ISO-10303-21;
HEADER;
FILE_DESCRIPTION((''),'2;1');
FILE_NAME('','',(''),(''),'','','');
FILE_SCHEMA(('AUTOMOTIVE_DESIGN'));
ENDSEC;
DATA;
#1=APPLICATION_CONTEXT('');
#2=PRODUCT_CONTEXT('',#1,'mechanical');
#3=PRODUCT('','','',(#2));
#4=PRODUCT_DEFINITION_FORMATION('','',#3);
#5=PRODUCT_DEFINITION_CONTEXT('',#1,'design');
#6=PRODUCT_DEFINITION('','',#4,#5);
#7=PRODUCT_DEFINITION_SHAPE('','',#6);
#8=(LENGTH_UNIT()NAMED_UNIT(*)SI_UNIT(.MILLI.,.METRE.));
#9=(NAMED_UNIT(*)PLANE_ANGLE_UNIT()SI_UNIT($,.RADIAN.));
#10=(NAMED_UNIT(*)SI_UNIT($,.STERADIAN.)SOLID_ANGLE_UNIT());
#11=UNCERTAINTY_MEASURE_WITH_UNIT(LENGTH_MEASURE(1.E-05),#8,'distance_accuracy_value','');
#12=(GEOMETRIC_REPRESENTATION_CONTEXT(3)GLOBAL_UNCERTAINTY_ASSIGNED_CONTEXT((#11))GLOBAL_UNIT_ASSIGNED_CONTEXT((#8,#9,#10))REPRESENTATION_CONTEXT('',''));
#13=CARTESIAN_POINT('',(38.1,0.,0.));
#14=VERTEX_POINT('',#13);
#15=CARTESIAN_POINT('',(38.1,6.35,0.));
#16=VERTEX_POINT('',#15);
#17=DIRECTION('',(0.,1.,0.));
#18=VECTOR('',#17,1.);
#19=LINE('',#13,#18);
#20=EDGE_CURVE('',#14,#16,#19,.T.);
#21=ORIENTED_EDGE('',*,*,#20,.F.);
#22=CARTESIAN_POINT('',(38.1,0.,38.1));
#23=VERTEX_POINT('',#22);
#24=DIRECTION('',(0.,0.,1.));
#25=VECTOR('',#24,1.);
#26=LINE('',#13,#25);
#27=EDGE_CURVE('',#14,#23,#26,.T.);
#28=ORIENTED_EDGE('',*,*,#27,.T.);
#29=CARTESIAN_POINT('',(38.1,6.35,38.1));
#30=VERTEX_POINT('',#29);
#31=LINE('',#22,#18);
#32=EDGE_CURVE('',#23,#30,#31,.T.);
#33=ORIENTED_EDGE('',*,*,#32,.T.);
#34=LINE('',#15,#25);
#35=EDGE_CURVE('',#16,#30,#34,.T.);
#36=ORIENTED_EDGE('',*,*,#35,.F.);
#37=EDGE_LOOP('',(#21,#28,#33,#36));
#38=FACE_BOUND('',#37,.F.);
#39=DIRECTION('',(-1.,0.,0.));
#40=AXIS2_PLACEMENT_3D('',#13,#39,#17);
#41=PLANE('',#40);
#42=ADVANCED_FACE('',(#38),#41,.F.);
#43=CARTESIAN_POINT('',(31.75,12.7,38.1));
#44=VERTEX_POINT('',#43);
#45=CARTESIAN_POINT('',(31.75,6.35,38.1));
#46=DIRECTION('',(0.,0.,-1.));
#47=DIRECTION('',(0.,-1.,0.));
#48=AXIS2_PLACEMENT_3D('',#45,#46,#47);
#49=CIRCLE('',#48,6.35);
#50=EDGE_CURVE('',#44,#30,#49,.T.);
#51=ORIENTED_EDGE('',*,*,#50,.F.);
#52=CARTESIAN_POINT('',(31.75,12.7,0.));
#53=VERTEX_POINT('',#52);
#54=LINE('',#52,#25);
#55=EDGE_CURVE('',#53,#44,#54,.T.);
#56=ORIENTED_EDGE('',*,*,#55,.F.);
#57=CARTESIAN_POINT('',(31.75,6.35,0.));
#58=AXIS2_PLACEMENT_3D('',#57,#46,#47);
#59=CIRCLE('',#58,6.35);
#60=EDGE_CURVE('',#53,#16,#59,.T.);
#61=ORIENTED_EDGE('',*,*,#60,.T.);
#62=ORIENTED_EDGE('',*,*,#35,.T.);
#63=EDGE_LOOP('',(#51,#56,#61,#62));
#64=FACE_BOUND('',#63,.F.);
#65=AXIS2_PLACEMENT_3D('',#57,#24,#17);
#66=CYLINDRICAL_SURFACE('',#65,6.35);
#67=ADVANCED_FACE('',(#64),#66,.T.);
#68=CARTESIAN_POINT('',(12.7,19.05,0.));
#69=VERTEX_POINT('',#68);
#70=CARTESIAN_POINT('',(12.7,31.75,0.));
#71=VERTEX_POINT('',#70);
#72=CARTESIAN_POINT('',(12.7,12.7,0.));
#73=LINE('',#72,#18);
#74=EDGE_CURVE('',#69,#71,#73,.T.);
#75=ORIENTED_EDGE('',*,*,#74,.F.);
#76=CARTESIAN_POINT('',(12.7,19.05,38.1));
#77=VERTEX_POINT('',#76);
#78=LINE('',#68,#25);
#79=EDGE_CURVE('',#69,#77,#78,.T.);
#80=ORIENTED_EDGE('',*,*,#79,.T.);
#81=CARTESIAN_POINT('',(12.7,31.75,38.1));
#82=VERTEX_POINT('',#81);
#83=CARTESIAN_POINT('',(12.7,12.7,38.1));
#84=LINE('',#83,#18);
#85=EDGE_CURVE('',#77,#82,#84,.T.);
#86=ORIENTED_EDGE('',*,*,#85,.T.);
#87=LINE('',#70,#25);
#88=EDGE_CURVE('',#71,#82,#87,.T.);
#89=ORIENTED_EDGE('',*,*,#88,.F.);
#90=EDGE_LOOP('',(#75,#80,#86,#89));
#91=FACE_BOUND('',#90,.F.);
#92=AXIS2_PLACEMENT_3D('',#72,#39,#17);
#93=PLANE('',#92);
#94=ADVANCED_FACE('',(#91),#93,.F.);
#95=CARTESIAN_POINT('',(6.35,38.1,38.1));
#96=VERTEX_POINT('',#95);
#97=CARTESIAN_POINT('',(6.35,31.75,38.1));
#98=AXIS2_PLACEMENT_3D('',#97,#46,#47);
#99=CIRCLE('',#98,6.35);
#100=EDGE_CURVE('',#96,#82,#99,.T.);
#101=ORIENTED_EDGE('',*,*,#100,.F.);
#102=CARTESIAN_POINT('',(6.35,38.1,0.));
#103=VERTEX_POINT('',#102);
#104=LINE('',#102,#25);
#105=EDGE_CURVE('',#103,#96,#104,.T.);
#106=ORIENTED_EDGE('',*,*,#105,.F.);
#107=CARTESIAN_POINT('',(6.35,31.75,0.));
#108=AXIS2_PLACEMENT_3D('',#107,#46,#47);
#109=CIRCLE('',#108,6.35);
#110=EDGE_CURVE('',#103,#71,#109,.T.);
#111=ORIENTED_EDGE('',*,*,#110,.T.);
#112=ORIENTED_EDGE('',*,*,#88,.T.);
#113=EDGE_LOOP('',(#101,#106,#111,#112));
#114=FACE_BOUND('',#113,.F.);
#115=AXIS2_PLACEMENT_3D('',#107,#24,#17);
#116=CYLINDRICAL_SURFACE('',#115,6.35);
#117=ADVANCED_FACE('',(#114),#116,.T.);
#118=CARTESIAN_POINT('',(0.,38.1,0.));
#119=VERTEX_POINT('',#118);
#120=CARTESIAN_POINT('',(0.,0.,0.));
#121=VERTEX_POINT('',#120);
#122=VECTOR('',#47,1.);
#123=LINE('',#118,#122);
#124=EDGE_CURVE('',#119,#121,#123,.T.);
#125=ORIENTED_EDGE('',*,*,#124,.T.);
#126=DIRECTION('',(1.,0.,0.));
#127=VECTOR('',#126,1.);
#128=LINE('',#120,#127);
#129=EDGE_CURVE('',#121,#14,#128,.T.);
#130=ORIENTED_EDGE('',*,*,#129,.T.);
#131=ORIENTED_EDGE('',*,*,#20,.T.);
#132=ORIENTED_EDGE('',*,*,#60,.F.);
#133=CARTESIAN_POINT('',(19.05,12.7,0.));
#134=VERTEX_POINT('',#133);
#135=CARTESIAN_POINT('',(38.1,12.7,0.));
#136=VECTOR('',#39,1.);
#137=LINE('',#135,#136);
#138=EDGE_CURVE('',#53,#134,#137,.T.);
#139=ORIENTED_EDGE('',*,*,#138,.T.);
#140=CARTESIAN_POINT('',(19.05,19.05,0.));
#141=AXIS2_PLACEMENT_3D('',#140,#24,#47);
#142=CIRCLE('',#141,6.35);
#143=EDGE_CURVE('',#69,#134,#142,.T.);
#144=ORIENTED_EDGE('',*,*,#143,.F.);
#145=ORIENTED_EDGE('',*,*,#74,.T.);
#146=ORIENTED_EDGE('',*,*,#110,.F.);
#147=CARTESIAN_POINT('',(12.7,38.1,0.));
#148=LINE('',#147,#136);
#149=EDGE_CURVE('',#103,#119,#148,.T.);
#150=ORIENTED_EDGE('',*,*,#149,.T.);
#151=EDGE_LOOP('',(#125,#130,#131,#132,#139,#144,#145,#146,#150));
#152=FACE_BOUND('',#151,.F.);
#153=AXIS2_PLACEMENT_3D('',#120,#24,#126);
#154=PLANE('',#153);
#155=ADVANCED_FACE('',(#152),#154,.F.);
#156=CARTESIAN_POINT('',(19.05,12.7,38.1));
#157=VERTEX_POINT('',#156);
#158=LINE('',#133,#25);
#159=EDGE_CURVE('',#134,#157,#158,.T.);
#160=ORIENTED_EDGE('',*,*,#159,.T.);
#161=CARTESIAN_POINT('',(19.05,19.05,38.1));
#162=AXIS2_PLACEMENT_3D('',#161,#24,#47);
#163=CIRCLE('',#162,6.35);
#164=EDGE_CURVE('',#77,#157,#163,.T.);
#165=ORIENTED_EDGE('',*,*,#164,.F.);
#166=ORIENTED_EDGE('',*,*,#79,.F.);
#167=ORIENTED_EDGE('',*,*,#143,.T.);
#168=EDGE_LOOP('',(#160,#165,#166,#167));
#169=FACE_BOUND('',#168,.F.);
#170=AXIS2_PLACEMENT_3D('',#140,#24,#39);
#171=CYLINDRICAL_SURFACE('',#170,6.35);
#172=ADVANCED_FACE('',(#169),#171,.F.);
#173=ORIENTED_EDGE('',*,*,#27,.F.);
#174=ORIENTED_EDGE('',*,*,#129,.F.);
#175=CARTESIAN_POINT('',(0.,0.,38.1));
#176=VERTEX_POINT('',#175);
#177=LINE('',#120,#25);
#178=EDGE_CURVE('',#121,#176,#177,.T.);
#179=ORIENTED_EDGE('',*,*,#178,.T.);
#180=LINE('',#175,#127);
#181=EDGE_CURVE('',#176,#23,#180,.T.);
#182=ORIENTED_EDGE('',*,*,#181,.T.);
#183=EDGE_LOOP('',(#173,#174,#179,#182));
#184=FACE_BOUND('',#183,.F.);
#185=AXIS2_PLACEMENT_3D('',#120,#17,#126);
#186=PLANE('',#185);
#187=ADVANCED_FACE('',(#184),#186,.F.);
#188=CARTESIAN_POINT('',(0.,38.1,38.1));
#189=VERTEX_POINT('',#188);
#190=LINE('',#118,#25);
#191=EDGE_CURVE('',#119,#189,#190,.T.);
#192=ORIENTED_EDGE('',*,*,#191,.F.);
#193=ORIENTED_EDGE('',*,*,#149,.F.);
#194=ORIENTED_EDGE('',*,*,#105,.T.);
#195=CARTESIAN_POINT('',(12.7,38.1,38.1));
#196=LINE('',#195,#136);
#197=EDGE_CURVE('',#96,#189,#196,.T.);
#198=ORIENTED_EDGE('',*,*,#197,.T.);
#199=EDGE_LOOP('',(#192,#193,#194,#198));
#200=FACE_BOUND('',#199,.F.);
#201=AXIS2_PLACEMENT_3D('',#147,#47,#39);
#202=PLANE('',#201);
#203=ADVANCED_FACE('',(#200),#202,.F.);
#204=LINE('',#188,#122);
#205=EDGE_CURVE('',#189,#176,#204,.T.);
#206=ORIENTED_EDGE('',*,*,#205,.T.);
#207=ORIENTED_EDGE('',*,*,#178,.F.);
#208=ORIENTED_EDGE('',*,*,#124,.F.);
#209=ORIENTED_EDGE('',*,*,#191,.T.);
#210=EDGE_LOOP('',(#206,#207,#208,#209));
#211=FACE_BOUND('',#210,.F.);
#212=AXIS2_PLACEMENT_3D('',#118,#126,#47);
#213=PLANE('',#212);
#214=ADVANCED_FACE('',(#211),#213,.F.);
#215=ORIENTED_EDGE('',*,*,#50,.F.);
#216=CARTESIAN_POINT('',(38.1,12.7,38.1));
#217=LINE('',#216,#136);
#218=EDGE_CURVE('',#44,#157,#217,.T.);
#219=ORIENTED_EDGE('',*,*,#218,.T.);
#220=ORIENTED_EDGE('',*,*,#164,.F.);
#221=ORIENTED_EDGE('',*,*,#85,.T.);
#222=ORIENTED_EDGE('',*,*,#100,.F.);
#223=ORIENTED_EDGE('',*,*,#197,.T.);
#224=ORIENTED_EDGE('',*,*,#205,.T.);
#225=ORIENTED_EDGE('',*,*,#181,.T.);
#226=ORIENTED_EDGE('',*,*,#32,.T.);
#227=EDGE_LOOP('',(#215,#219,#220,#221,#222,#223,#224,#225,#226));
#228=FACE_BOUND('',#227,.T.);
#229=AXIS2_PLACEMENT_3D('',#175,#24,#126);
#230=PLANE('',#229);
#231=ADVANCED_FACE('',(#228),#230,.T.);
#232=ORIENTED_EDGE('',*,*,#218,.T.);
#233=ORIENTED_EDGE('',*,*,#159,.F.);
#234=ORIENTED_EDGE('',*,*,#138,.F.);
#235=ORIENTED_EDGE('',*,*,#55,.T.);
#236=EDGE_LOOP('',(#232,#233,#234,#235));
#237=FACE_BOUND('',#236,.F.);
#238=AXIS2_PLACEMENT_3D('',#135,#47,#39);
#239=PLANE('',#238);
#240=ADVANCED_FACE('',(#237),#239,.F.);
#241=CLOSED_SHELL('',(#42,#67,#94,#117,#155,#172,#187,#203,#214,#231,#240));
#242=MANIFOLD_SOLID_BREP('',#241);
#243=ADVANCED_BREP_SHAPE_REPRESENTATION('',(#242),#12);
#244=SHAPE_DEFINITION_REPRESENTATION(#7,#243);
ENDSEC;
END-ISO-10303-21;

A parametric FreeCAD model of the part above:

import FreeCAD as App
import Part
import Sketcher
Q = App.Units.Quantity


def edges_at(feature, points):
    """Names of the edges that pass closest to the given points."""
    edges = feature.Shape.Edges
    near = lambda p: min(range(len(edges)), key=lambda i: edges[i].distToShape(Part.Vertex(*p))[0])
    return sorted({f"Edge{near(p) + 1}" for p in points})


def add_polygon(sketch, points):
    """Adds a closed chain of lines whose ends are joined by coincident constraints."""
    first, n = sketch.GeometryCount, len(points)
    for a, b in zip(points, points[1:] + points[:1]):
        sketch.addGeometry(Part.LineSegment(App.Vector(*a, 0), App.Vector(*b, 0)), False)
    for i in range(n):
        sketch.addConstraint(Sketcher.Constraint("Coincident", first + i, 2, first + (i + 1) % n, 1))

doc = App.newDocument("Part")
body = doc.addObject("PartDesign::Body", "Body")

# Sketch on XY plane
sketch1 = body.newObject("Sketcher::SketchObject", "Sketch")
sketch1.AttachmentSupport = (doc.getObject("XY_Plane"), [""])
sketch1.MapMode = "FlatFace"
add_polygon(sketch1, [(0, 38), (0, 0), (38, 0), (38, 13), (13, 13), (13, 38)])  # lines 0-5
sketch1.addConstraint([
    Sketcher.Constraint("Vertical", 0),
    Sketcher.Constraint("Horizontal", 1),
    Sketcher.Constraint("Vertical", 2),
    Sketcher.Constraint("Horizontal", 3),
    Sketcher.Constraint("Vertical", 4),
    Sketcher.Constraint("Horizontal", 5),
    Sketcher.Constraint("Coincident", 0, 2, -1, 1),
    Sketcher.Constraint("Equal", 1, 0),
    Sketcher.Constraint("Equal", 5, 2),
    Sketcher.Constraint("DistanceX", 3, 2, 3, 1, Q("1 in")),
    Sketcher.Constraint("DistanceX", 1, 1, 1, 2, Q("1.5 in")),
])
pad1 = body.newObject("PartDesign::Pad", "Pad")
pad1.Profile = sketch1
pad1.Length = Q("1.5 in")
doc.recompute()

fillet = body.newObject("PartDesign::Fillet", "Fillet")
fillet.Base = (pad1, edges_at(pad1, [(12.7, 38.1, 19.05)]))
fillet.Radius = Q("0.25 in")
doc.recompute()

fillet2 = body.newObject("PartDesign::Fillet", "Fillet001")
fillet2.Base = (fillet, edges_at(fillet, [(12.7, 12.7, 19.05), (38.1, 12.7, 19.05)]))
fillet2.Radius = Q("0.25 in")

doc.recompute()
